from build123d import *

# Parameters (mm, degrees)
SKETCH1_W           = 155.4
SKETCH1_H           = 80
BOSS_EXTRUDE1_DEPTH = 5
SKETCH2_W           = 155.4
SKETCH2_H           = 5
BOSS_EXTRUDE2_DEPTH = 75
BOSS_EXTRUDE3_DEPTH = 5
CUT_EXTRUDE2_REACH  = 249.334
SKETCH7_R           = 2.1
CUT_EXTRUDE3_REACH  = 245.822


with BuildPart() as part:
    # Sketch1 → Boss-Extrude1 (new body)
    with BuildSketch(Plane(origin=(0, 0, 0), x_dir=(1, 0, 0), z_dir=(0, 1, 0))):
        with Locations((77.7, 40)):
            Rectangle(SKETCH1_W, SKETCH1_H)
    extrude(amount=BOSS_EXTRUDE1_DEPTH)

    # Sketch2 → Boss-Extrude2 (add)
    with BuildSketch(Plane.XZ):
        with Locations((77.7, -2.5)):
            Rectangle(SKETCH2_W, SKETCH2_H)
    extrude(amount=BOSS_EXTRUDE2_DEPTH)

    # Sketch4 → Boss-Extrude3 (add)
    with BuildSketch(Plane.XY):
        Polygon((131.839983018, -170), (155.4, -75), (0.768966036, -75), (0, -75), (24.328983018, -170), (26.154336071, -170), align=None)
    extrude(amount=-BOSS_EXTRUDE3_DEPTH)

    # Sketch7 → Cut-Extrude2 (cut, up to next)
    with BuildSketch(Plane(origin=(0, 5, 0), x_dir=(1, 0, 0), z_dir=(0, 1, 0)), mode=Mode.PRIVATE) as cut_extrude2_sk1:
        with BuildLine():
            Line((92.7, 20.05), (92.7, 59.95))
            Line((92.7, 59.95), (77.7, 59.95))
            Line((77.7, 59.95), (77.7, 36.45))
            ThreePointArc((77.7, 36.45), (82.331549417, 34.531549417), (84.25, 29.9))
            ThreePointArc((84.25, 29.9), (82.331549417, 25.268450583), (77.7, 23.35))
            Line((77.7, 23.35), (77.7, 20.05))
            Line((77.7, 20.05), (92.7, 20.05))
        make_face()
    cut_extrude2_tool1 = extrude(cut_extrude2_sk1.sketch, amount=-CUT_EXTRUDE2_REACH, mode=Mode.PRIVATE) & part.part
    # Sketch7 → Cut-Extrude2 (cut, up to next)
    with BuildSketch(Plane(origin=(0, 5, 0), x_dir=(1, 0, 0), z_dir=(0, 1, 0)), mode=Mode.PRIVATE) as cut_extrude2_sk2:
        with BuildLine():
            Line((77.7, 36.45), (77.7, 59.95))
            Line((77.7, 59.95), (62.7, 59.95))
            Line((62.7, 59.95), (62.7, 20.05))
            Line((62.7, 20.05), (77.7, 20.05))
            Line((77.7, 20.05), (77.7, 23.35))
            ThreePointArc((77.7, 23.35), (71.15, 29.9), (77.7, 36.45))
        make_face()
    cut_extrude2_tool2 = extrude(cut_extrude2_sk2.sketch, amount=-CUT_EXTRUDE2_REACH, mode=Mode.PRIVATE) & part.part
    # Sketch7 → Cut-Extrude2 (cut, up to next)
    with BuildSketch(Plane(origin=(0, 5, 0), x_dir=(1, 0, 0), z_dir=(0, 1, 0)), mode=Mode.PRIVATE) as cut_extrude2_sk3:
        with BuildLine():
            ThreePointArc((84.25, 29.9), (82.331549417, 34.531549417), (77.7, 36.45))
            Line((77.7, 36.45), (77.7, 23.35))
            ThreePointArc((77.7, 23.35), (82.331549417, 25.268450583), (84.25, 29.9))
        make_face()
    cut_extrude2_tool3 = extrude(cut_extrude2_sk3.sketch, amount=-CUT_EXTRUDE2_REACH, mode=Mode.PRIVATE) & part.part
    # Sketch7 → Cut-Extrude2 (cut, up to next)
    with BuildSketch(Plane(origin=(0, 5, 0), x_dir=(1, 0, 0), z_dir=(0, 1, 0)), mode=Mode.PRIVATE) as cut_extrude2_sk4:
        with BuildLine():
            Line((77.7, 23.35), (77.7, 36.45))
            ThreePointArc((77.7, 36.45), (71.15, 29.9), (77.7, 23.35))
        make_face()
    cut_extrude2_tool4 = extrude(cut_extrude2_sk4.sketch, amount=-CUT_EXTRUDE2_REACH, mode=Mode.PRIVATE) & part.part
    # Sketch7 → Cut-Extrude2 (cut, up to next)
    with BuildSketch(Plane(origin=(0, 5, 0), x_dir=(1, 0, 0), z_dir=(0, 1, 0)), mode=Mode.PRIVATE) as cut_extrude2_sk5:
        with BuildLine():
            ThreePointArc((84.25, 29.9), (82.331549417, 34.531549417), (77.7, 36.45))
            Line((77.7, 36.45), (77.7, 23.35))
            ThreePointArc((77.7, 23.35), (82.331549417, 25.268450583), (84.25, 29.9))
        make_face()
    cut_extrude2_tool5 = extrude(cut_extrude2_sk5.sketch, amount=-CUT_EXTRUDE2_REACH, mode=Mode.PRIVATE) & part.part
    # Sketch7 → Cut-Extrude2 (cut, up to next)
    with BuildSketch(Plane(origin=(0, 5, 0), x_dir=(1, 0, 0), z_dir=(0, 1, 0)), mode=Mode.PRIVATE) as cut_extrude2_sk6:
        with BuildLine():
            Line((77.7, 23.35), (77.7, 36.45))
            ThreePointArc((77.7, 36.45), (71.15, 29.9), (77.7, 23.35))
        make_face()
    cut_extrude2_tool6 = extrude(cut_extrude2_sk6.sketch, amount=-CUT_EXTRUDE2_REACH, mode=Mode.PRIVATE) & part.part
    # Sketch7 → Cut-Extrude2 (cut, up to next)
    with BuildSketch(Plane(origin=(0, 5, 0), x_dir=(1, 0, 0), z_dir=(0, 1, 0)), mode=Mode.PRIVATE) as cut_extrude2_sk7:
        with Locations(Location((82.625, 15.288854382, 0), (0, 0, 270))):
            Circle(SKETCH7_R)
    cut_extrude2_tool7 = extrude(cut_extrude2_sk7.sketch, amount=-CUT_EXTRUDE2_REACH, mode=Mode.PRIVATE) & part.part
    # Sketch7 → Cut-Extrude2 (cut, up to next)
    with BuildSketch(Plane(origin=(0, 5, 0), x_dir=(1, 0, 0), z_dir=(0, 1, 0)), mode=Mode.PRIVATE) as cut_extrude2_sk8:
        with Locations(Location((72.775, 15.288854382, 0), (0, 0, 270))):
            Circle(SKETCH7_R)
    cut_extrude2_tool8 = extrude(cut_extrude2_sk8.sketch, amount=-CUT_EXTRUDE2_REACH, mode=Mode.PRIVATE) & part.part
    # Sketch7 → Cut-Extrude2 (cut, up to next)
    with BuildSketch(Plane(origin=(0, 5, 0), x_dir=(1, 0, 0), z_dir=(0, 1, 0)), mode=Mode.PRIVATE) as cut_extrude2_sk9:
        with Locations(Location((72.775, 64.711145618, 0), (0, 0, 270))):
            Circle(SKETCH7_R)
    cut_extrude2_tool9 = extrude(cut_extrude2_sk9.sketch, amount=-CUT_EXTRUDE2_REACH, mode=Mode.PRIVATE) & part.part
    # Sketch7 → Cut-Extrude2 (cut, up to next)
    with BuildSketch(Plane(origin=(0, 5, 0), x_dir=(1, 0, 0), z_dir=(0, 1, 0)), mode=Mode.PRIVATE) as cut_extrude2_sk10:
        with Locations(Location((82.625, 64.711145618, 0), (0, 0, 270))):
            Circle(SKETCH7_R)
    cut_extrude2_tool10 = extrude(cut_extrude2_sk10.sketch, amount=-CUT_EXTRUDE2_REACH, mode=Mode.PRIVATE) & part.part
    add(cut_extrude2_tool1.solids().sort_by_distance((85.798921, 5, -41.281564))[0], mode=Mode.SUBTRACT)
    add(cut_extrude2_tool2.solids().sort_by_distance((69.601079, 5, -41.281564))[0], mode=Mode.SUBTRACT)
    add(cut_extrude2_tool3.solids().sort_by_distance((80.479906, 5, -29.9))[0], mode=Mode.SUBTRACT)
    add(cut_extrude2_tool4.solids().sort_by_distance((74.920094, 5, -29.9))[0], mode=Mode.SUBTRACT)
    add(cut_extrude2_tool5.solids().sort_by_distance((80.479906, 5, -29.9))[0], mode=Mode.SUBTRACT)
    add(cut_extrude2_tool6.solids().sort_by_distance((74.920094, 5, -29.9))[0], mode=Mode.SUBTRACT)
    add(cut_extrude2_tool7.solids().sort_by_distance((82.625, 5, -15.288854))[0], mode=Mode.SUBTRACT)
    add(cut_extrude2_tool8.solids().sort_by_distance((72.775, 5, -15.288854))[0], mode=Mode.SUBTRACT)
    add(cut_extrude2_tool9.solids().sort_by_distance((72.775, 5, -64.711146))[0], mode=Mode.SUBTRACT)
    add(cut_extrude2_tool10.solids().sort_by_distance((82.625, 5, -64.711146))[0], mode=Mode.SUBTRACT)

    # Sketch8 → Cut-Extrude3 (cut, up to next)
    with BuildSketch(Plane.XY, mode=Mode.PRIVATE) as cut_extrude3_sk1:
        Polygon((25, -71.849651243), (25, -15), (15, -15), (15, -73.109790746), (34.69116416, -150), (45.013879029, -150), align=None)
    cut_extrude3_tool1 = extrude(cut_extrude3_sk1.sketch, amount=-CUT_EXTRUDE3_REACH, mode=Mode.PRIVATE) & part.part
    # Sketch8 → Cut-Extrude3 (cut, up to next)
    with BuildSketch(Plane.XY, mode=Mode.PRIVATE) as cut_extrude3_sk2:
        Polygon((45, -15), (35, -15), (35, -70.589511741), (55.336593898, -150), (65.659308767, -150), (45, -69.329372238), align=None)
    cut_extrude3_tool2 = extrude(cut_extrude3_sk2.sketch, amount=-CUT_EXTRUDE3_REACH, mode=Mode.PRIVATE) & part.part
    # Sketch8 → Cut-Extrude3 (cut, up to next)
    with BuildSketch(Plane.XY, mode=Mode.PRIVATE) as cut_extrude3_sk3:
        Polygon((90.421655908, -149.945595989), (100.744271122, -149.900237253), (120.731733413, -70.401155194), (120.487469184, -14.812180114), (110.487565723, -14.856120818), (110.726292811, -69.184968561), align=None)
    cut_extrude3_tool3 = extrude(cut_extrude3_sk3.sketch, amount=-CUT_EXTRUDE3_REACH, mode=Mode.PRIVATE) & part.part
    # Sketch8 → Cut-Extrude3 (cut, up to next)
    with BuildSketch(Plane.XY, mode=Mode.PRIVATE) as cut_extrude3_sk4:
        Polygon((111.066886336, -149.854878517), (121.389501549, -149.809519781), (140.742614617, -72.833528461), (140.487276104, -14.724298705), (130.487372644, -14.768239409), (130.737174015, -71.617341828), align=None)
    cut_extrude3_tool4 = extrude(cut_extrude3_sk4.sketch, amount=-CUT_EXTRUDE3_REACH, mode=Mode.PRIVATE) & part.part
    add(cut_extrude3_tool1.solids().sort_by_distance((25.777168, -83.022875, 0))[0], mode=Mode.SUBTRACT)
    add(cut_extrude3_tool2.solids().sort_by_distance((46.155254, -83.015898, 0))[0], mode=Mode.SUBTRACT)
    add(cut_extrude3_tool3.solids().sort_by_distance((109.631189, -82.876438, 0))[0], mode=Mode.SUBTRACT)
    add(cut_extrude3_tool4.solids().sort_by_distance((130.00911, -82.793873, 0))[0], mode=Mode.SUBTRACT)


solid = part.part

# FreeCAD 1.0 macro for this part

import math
import FreeCAD as App
import Part
import Sketcher
from FreeCAD import Vector


def add_polygon(sketch, points):
    """Adds a closed chain of lines whose ends are joined by coincident constraints."""
    first, n = sketch.GeometryCount, len(points)
    for a, b in zip(points, points[1:] + points[:1]):
        sketch.addGeometry(Part.LineSegment(App.Vector(*a, 0), App.Vector(*b, 0)), False)
    for i in range(n):
        sketch.addConstraint(Sketcher.Constraint("Coincident", first + i, 2, first + (i + 1) % n, 1))

doc = App.newDocument("Part")
body = doc.addObject("PartDesign::Body", "Body")
body.AllowCompound = True

sketch1 = body.newObject("Sketcher::SketchObject", "Sketch")
sketch1.AttachmentSupport = (doc.getObject("XZ_Plane"), [""])
sketch1.MapMode = "FlatFace"
add_polygon(sketch1, [(0, -80), (0, 0), (155, 0), (155, -80)])
sketch1.addConstraint([
    Sketcher.Constraint("Vertical", 0),
    Sketcher.Constraint("Horizontal", 1),
    Sketcher.Constraint("Vertical", 2),
    Sketcher.Constraint("Horizontal", 3),
    Sketcher.Constraint("Coincident", 0, 2, -1, 1),
    Sketcher.Constraint("DistanceY", 0, 1, 0, 2, 80.0),
    Sketcher.Constraint("DistanceX", 1, 1, 1, 2, 155.4),
])
pad1 = body.newObject("PartDesign::Pad", "Pad")
pad1.Profile = sketch1
pad1.Length = 5
pad1.Reversed = True

sketch2 = body.newObject("Sketcher::SketchObject", "Sketch001")
sketch2.AttachmentSupport = (doc.getObject("XZ_Plane"), [""])
sketch2.MapMode = "FlatFace"
add_polygon(sketch2, [(0, 0), (0, -5), (155, -5), (155, 0)])
sketch2.addConstraint([
    Sketcher.Constraint("Vertical", 0),
    Sketcher.Constraint("Horizontal", 1),
    Sketcher.Constraint("Vertical", 2),
    Sketcher.Constraint("Horizontal", 3),
    Sketcher.Constraint("Coincident", 3, 2, -1, 1),
    Sketcher.Constraint("DistanceY", 0, 2, 0, 1, 5.0),
    Sketcher.Constraint("DistanceX", 1, 1, 1, 2, 155.4),
])
pad2 = body.newObject("PartDesign::Pad", "Pad001")
pad2.Profile = sketch2
pad2.Length = 75

sketch3 = body.newObject("Sketcher::SketchObject", "Sketch002")
sketch3.AttachmentSupport = (doc.getObject("XY_Plane"), [""])
sketch3.MapMode = "FlatFace"
add_polygon(sketch3, [(132, -170), (155, -75), (0, -75), (24, -170)])
sketch3.addConstraint([
    Sketcher.Constraint("Horizontal", 1),
    Sketcher.Constraint("Horizontal", 3),
    Sketcher.Constraint("PointOnObject", 1, 2, -2),
    Sketcher.Constraint("DistanceX", 1, 2, 1, 1, 155.4),
    Sketcher.Constraint("DistanceY", 0, 2, -1, 1, 75.0),
    Sketcher.Constraint("DistanceY", 2, 2, -1, 1, 170.0),
    Sketcher.Constraint("DistanceX", 3, 1, 3, 2, 107.511),
    Sketcher.Constraint("Distance", 2, 98.065791),
])
pad3 = body.newObject("PartDesign::Pad", "Pad002")
pad3.Profile = sketch3
pad3.Length = 5
pad3.Reversed = True

sketch4 = body.newObject("Sketcher::SketchObject", "Sketch003")
sketch4.AttachmentSupport = (doc.getObject("XZ_Plane"), [""])
sketch4.MapMode = "FlatFace"
sketch4.AttachmentOffset = App.Placement(Vector(0, 0, -5), App.Rotation())
sketch4.addGeometry([
    Part.LineSegment(Vector(92.7, -20.1, 0), Vector(92.7, -60, 0)),
    Part.LineSegment(Vector(92.7, -60, 0), Vector(77.7, -60, 0)),
    Part.LineSegment(Vector(77.7, -60, 0), Vector(77.7, -36.5, 0)),
    Part.ArcOfCircle(Part.Circle(Vector(77.7, -29.9, 0), Vector(0, 0, 1), 6.5), math.radians(-90), math.radians(0)),
    Part.ArcOfCircle(Part.Circle(Vector(77.7, -29.9, 0), Vector(0, 0, 1), 6.5), math.radians(0), math.radians(90)),
    Part.LineSegment(Vector(77.7, -23.4, 0), Vector(77.7, -20.1, 0)),
    Part.LineSegment(Vector(77.7, -20.1, 0), Vector(92.7, -20.1, 0)),
], False)
sketch4.addConstraint([
    Sketcher.Constraint("Coincident", 0, 2, 1, 1),
    Sketcher.Constraint("Coincident", 1, 2, 2, 1),
    Sketcher.Constraint("Coincident", 2, 2, 3, 1),
    Sketcher.Constraint("Tangent", 3, 2, 4, 1),
    Sketcher.Constraint("Coincident", 4, 2, 5, 1),
    Sketcher.Constraint("Coincident", 5, 2, 6, 1),
    Sketcher.Constraint("Coincident", 6, 2, 0, 1),
    Sketcher.Constraint("Vertical", 0),
    Sketcher.Constraint("Horizontal", 1),
    Sketcher.Constraint("Vertical", 2),
    Sketcher.Constraint("Vertical", 5),
    Sketcher.Constraint("Horizontal", 6),
    Sketcher.Constraint("Equal", 3, 4),
    Sketcher.Constraint("Horizontal", 4, 3, 3, 2),
    Sketcher.Constraint("Vertical", 4, 3, 1, 2),
    Sketcher.Constraint("Vertical", 2, 2, 4, 2),
    Sketcher.Constraint("DistanceX", 1, 2, 1, 1, 15.0),
    Sketcher.Constraint("Radius", 3, 6.55),
    Sketcher.Constraint("DistanceY", 0, 2, 0, 1, 39.9),
    Sketcher.Constraint("DistanceY", 2, 1, 2, 2, 23.5),
    Sketcher.Constraint("DistanceX", -1, 1, 3, 3, 77.7),
    Sketcher.Constraint("DistanceY", 3, 3, -1, 1, 29.9),
])
pocket1 = body.newObject("PartDesign::Pocket", "Pocket")
pocket1.Profile = sketch4
pocket1.Type = "UpToFirst"
pocket1.Reversed = True

sketch5 = body.newObject("Sketcher::SketchObject", "Sketch004")
sketch5.AttachmentSupport = (doc.getObject("XZ_Plane"), [""])
sketch5.MapMode = "FlatFace"
sketch5.AttachmentOffset = App.Placement(Vector(0, 0, -5), App.Rotation())
sketch5.addGeometry([
    Part.LineSegment(Vector(77.7, -36.5, 0), Vector(77.7, -60, 0)),
    Part.LineSegment(Vector(77.7, -60, 0), Vector(62.7, -60, 0)),
    Part.LineSegment(Vector(62.7, -60, 0), Vector(62.7, -20.1, 0)),
    Part.LineSegment(Vector(62.7, -20.1, 0), Vector(77.7, -20.1, 0)),
    Part.LineSegment(Vector(77.7, -20.1, 0), Vector(77.7, -23.4, 0)),
    Part.ArcOfCircle(Part.Circle(Vector(77.7, -29.9, 0), Vector(0, 0, 1), 6.5), math.radians(90), math.radians(270)),
], False)
sketch5.addConstraint([
    Sketcher.Constraint("Coincident", 0, 2, 1, 1),
    Sketcher.Constraint("Coincident", 1, 2, 2, 1),
    Sketcher.Constraint("Coincident", 2, 2, 3, 1),
    Sketcher.Constraint("Coincident", 3, 2, 4, 1),
    Sketcher.Constraint("Coincident", 4, 2, 5, 1),
    Sketcher.Constraint("Coincident", 5, 2, 0, 1),
    Sketcher.Constraint("Vertical", 0),
    Sketcher.Constraint("Horizontal", 1),
    Sketcher.Constraint("Vertical", 2),
    Sketcher.Constraint("Horizontal", 3),
    Sketcher.Constraint("Vertical", 4),
    Sketcher.Constraint("Vertical", 5, 3, 0, 2),
    Sketcher.Constraint("Vertical", 0, 2, 3, 2),
    Sketcher.Constraint("DistanceX", 1, 2, 1, 1, 15.0),
    Sketcher.Constraint("Radius", 5, 6.55),
    Sketcher.Constraint("DistanceY", 0, 2, 0, 1, 23.5),
    Sketcher.Constraint("DistanceY", 2, 1, 2, 2, 39.9),
    Sketcher.Constraint("DistanceX", -1, 1, 5, 3, 77.7),
    Sketcher.Constraint("DistanceY", 5, 3, -1, 1, 29.9),
])
pocket2 = body.newObject("PartDesign::Pocket", "Pocket001")
pocket2.Profile = sketch5
pocket2.Type = "UpToFirst"
pocket2.Reversed = True

sketch6 = body.newObject("Sketcher::SketchObject", "Sketch005")
sketch6.AttachmentSupport = (doc.getObject("XZ_Plane"), [""])
sketch6.MapMode = "FlatFace"
sketch6.AttachmentOffset = App.Placement(Vector(0, 0, -5), App.Rotation())
sketch6.addGeometry([
    Part.ArcOfCircle(Part.Circle(Vector(78, -30, 0), Vector(0, 0, 1), 7), math.radians(-90), math.radians(0)),
    Part.LineSegment(Vector(78, -36, 0), Vector(78, -23, 0)),
    Part.ArcOfCircle(Part.Circle(Vector(78, -30, 0), Vector(0, 0, 1), 7), math.radians(0), math.radians(90)),
], False)
sketch6.addConstraint([
    Sketcher.Constraint("Coincident", 0, 1, 1, 1),
    Sketcher.Constraint("Coincident", 1, 2, 2, 2),
    Sketcher.Constraint("Tangent", 2, 1, 0, 2),
    Sketcher.Constraint("Vertical", 1),
    Sketcher.Constraint("Equal", 0, 2),
    Sketcher.Constraint("Horizontal", 0, 3, 2, 1),
    Sketcher.Constraint("Vertical", 2, 3, 0, 1),
    Sketcher.Constraint("Radius", 0, 6.55),
    Sketcher.Constraint("DistanceX", -1, 1, 0, 3, 77.7),
    Sketcher.Constraint("DistanceY", 0, 3, -1, 1, 29.9),
])
pocket3 = body.newObject("PartDesign::Pocket", "Pocket002")
pocket3.Profile = sketch6
pocket3.Type = "UpToFirst"
pocket3.Reversed = True

sketch7 = body.newObject("Sketcher::SketchObject", "Sketch006")
sketch7.AttachmentSupport = (doc.getObject("XZ_Plane"), [""])
sketch7.MapMode = "FlatFace"
sketch7.AttachmentOffset = App.Placement(Vector(0, 0, -5), App.Rotation())
sketch7.addGeometry([
    Part.LineSegment(Vector(78, -23, 0), Vector(78, -36, 0)),
    Part.ArcOfCircle(Part.Circle(Vector(78, -30, 0), Vector(0, 0, 1), 7), math.radians(90), math.radians(270)),
], False)
sketch7.addConstraint([
    Sketcher.Constraint("Coincident", 0, 1, 1, 1),
    Sketcher.Constraint("Coincident", 1, 2, 0, 2),
    Sketcher.Constraint("Vertical", 0),
    Sketcher.Constraint("Vertical", 1, 3, 0, 1),
    Sketcher.Constraint("Radius", 1, 6.55),
    Sketcher.Constraint("DistanceX", -1, 1, 1, 3, 77.7),
    Sketcher.Constraint("DistanceY", 1, 3, -1, 1, 29.9),
])
pocket4 = body.newObject("PartDesign::Pocket", "Pocket003")
pocket4.Profile = sketch7
pocket4.Type = "UpToFirst"
pocket4.Reversed = True

sketch8 = body.newObject("Sketcher::SketchObject", "Sketch007")
sketch8.AttachmentSupport = (doc.getObject("XZ_Plane"), [""])
sketch8.MapMode = "FlatFace"
sketch8.AttachmentOffset = App.Placement(Vector(0, 0, -5), App.Rotation())
sketch8.addGeometry([
    Part.ArcOfCircle(Part.Circle(Vector(78, -30, 0), Vector(0, 0, 1), 7), math.radians(-90), math.radians(0)),
    Part.LineSegment(Vector(78, -36, 0), Vector(78, -23, 0)),
    Part.ArcOfCircle(Part.Circle(Vector(78, -30, 0), Vector(0, 0, 1), 7), math.radians(0), math.radians(90)),
], False)
sketch8.addConstraint([
    Sketcher.Constraint("Coincident", 0, 1, 1, 1),
    Sketcher.Constraint("Coincident", 1, 2, 2, 2),
    Sketcher.Constraint("Tangent", 2, 1, 0, 2),
    Sketcher.Constraint("Vertical", 1),
    Sketcher.Constraint("Equal", 0, 2),
    Sketcher.Constraint("Horizontal", 0, 3, 2, 1),
    Sketcher.Constraint("Vertical", 2, 3, 0, 1),
    Sketcher.Constraint("Radius", 0, 6.55),
    Sketcher.Constraint("DistanceX", -1, 1, 0, 3, 77.7),
    Sketcher.Constraint("DistanceY", 0, 3, -1, 1, 29.9),
])
pocket5 = body.newObject("PartDesign::Pocket", "Pocket004")
pocket5.Profile = sketch8
pocket5.Length = 5
pocket5.Reversed = True

sketch9 = body.newObject("Sketcher::SketchObject", "Sketch008")
sketch9.AttachmentSupport = (doc.getObject("XZ_Plane"), [""])
sketch9.MapMode = "FlatFace"
sketch9.AttachmentOffset = App.Placement(Vector(0, 0, -5), App.Rotation())
sketch9.addGeometry([
    Part.LineSegment(Vector(78, -23, 0), Vector(78, -36, 0)),
    Part.ArcOfCircle(Part.Circle(Vector(78, -30, 0), Vector(0, 0, 1), 7), math.radians(90), math.radians(270)),
], False)
sketch9.addConstraint([
    Sketcher.Constraint("Coincident", 0, 1, 1, 1),
    Sketcher.Constraint("Coincident", 1, 2, 0, 2),
    Sketcher.Constraint("Vertical", 0),
    Sketcher.Constraint("Vertical", 1, 3, 0, 1),
    Sketcher.Constraint("Radius", 1, 6.55),
    Sketcher.Constraint("DistanceX", -1, 1, 1, 3, 77.7),
    Sketcher.Constraint("DistanceY", 1, 3, -1, 1, 29.9),
])
pocket6 = body.newObject("PartDesign::Pocket", "Pocket005")
pocket6.Profile = sketch9
pocket6.Length = 5
pocket6.Reversed = True

sketch10 = body.newObject("Sketcher::SketchObject", "Sketch009")
sketch10.AttachmentSupport = (doc.getObject("XZ_Plane"), [""])
sketch10.MapMode = "FlatFace"
sketch10.AttachmentOffset = App.Placement(Vector(0, 0, -5), App.Rotation())
sketch10.addGeometry(Part.Circle(Vector(82.6, -15.3, 0), Vector(0, 0, 1), 2.1), False)
sketch10.addConstraint([
    Sketcher.Constraint("Diameter", 0, 4.2),
    Sketcher.Constraint("DistanceX", -1, 1, 0, 3, 82.625),
    Sketcher.Constraint("DistanceY", 0, 3, -1, 1, 15.288854),
])
pocket7 = body.newObject("PartDesign::Pocket", "Pocket006")
pocket7.Profile = sketch10
pocket7.Type = "UpToFirst"
pocket7.Reversed = True

sketch11 = body.newObject("Sketcher::SketchObject", "Sketch010")
sketch11.AttachmentSupport = (doc.getObject("XZ_Plane"), [""])
sketch11.MapMode = "FlatFace"
sketch11.AttachmentOffset = App.Placement(Vector(0, 0, -5), App.Rotation())
sketch11.addGeometry(Part.Circle(Vector(72.8, -15.3, 0), Vector(0, 0, 1), 2.1), False)
sketch11.addConstraint([
    Sketcher.Constraint("Diameter", 0, 4.2),
    Sketcher.Constraint("DistanceX", -1, 1, 0, 3, 72.775),
    Sketcher.Constraint("DistanceY", 0, 3, -1, 1, 15.288854),
])
pocket8 = body.newObject("PartDesign::Pocket", "Pocket007")
pocket8.Profile = sketch11
pocket8.Type = "UpToFirst"
pocket8.Reversed = True

sketch12 = body.newObject("Sketcher::SketchObject", "Sketch011")
sketch12.AttachmentSupport = (doc.getObject("XZ_Plane"), [""])
sketch12.MapMode = "FlatFace"
sketch12.AttachmentOffset = App.Placement(Vector(0, 0, -5), App.Rotation())
sketch12.addGeometry(Part.Circle(Vector(72.8, -64.7, 0), Vector(0, 0, 1), 2.1), False)
sketch12.addConstraint([
    Sketcher.Constraint("Diameter", 0, 4.2),
    Sketcher.Constraint("DistanceX", -1, 1, 0, 3, 72.775),
    Sketcher.Constraint("DistanceY", 0, 3, -1, 1, 64.711146),
])
pocket9 = body.newObject("PartDesign::Pocket", "Pocket008")
pocket9.Profile = sketch12
pocket9.Type = "UpToFirst"
pocket9.Reversed = True

sketch13 = body.newObject("Sketcher::SketchObject", "Sketch012")
sketch13.AttachmentSupport = (doc.getObject("XZ_Plane"), [""])
sketch13.MapMode = "FlatFace"
sketch13.AttachmentOffset = App.Placement(Vector(0, 0, -5), App.Rotation())
sketch13.addGeometry(Part.Circle(Vector(82.6, -64.7, 0), Vector(0, 0, 1), 2.1), False)
sketch13.addConstraint([
    Sketcher.Constraint("Diameter", 0, 4.2),
    Sketcher.Constraint("DistanceX", -1, 1, 0, 3, 82.625),
    Sketcher.Constraint("DistanceY", 0, 3, -1, 1, 64.711146),
])
pocket10 = body.newObject("PartDesign::Pocket", "Pocket009")
pocket10.Profile = sketch13
pocket10.Type = "UpToFirst"
pocket10.Reversed = True

sketch14 = body.newObject("Sketcher::SketchObject", "Sketch013")
sketch14.AttachmentSupport = (doc.getObject("XY_Plane"), [""])
sketch14.MapMode = "FlatFace"
add_polygon(sketch14, [(25, -72), (25, -15), (15, -15), (15, -73), (35, -150), (45, -150)])
sketch14.addConstraint([
    Sketcher.Constraint("Vertical", 0),
    Sketcher.Constraint("Horizontal", 1),
    Sketcher.Constraint("Vertical", 2),
    Sketcher.Constraint("Horizontal", 4),
    Sketcher.Constraint("Parallel", 3, 5),
    Sketcher.Constraint("DistanceX", 1, 2, 1, 1, 10.0),
    Sketcher.Constraint("DistanceX", -1, 1, 0, 2, 25.0),
    Sketcher.Constraint("DistanceY", 0, 2, -1, 1, 15.0),
    Sketcher.Constraint("DistanceY", 3, 2, -1, 1, 150.0),
    Sketcher.Constraint("DistanceY", 0, 1, 0, 2, 56.849651),
    Sketcher.Constraint("DistanceY", 2, 2, 2, 1, 58.109791),
    Sketcher.Constraint("Distance", 3, 79.371571),
])
pocket11 = body.newObject("PartDesign::Pocket", "Pocket010")
pocket11.Profile = sketch14
pocket11.Type = "UpToFirst"

sketch15 = body.newObject("Sketcher::SketchObject", "Sketch014")
sketch15.AttachmentSupport = (doc.getObject("XY_Plane"), [""])
sketch15.MapMode = "FlatFace"
add_polygon(sketch15, [(45, -15), (35, -15), (35, -71), (55, -150), (66, -150), (45, -69)])
sketch15.addConstraint([
    Sketcher.Constraint("Horizontal", 0),
    Sketcher.Constraint("Vertical", 1),
    Sketcher.Constraint("Horizontal", 3),
    Sketcher.Constraint("Vertical", 5),
    Sketcher.Constraint("Parallel", 2, 4),
    Sketcher.Constraint("DistanceX", 0, 2, 0, 1, 10.0),
    Sketcher.Constraint("DistanceX", -1, 1, 0, 2, 35.0),
    Sketcher.Constraint("DistanceY", 0, 2, -1, 1, 15.0),
    Sketcher.Constraint("DistanceY", 2, 2, -1, 1, 150.0),
    Sketcher.Constraint("DistanceY", 1, 2, 1, 1, 55.589512),
    Sketcher.Constraint("Distance", 4, 83.273989),
    Sketcher.Constraint("DistanceX", 3, 1, 3, 2, 10.322715),
])
pocket12 = body.newObject("PartDesign::Pocket", "Pocket011")
pocket12.Profile = sketch15
pocket12.Type = "UpToFirst"

sketch16 = body.newObject("Sketcher::SketchObject", "Sketch015")
sketch16.AttachmentSupport = (doc.getObject("XY_Plane"), [""])
sketch16.MapMode = "FlatFace"
add_polygon(sketch16, [(90, -150), (101, -150), (121, -70), (120, -15), (110, -15), (111, -69)])
sketch16.addConstraint([
    Sketcher.Constraint("Perpendicular", 0, 2),
    Sketcher.Constraint("Perpendicular", 2, 3),
    Sketcher.Constraint("Perpendicular", 3, 4),
    Sketcher.Constraint("Parallel", 1, 5),
    Sketcher.Constraint("Distance", 3, 10.0),
    Sketcher.Constraint("DistanceX", 0, 2, 2, 2, 19.743198),
    Sketcher.Constraint("Distance", 2, 55.589512),
    Sketcher.Constraint("Distance", 5, 83.273989),
    Sketcher.Constraint("DistanceX", -1, 1, 0, 2, 100.744271),
    Sketcher.Constraint("DistanceY", 2, 2, -1, 1, 14.81218),
    Sketcher.Constraint("DistanceY", 3, 2, -1, 1, 14.856121),
    Sketcher.Constraint("DistanceY", 4, 2, -1, 1, 69.184969),
])
pocket13 = body.newObject("PartDesign::Pocket", "Pocket012")
pocket13.Profile = sketch16
pocket13.Type = "UpToFirst"

sketch17 = body.newObject("Sketcher::SketchObject", "Sketch016")
sketch17.AttachmentSupport = (doc.getObject("XY_Plane"), [""])
sketch17.MapMode = "FlatFace"
add_polygon(sketch17, [(111, -150), (121, -150), (141, -73), (140, -15), (130, -15), (131, -72)])
sketch17.addConstraint([
    Sketcher.Constraint("Perpendicular", 0, 2),
    Sketcher.Constraint("Perpendicular", 2, 3),
    Sketcher.Constraint("Perpendicular", 3, 4),
    Sketcher.Constraint("Parallel", 1, 5),
    Sketcher.Constraint("Distance", 3, 10.0),
    Sketcher.Constraint("DistanceX", -1, 1, 0, 2, 121.389502),
    Sketcher.Constraint("DistanceY", 2, 2, -1, 1, 14.724299),
    Sketcher.Constraint("DistanceX", 3, 2, 4, 2, 0.249801),
    Sketcher.Constraint("Distance", 1, 79.371571),
    Sketcher.Constraint("Distance", 2, 58.109791),
    Sketcher.Constraint("Distance", 4, 56.849651),
    Sketcher.Constraint("DistanceY", 0, 2, -1, 1, 149.80952),
])
pocket14 = body.newObject("PartDesign::Pocket", "Pocket013")
pocket14.Profile = sketch17
pocket14.Type = "UpToFirst"

doc.recompute()
